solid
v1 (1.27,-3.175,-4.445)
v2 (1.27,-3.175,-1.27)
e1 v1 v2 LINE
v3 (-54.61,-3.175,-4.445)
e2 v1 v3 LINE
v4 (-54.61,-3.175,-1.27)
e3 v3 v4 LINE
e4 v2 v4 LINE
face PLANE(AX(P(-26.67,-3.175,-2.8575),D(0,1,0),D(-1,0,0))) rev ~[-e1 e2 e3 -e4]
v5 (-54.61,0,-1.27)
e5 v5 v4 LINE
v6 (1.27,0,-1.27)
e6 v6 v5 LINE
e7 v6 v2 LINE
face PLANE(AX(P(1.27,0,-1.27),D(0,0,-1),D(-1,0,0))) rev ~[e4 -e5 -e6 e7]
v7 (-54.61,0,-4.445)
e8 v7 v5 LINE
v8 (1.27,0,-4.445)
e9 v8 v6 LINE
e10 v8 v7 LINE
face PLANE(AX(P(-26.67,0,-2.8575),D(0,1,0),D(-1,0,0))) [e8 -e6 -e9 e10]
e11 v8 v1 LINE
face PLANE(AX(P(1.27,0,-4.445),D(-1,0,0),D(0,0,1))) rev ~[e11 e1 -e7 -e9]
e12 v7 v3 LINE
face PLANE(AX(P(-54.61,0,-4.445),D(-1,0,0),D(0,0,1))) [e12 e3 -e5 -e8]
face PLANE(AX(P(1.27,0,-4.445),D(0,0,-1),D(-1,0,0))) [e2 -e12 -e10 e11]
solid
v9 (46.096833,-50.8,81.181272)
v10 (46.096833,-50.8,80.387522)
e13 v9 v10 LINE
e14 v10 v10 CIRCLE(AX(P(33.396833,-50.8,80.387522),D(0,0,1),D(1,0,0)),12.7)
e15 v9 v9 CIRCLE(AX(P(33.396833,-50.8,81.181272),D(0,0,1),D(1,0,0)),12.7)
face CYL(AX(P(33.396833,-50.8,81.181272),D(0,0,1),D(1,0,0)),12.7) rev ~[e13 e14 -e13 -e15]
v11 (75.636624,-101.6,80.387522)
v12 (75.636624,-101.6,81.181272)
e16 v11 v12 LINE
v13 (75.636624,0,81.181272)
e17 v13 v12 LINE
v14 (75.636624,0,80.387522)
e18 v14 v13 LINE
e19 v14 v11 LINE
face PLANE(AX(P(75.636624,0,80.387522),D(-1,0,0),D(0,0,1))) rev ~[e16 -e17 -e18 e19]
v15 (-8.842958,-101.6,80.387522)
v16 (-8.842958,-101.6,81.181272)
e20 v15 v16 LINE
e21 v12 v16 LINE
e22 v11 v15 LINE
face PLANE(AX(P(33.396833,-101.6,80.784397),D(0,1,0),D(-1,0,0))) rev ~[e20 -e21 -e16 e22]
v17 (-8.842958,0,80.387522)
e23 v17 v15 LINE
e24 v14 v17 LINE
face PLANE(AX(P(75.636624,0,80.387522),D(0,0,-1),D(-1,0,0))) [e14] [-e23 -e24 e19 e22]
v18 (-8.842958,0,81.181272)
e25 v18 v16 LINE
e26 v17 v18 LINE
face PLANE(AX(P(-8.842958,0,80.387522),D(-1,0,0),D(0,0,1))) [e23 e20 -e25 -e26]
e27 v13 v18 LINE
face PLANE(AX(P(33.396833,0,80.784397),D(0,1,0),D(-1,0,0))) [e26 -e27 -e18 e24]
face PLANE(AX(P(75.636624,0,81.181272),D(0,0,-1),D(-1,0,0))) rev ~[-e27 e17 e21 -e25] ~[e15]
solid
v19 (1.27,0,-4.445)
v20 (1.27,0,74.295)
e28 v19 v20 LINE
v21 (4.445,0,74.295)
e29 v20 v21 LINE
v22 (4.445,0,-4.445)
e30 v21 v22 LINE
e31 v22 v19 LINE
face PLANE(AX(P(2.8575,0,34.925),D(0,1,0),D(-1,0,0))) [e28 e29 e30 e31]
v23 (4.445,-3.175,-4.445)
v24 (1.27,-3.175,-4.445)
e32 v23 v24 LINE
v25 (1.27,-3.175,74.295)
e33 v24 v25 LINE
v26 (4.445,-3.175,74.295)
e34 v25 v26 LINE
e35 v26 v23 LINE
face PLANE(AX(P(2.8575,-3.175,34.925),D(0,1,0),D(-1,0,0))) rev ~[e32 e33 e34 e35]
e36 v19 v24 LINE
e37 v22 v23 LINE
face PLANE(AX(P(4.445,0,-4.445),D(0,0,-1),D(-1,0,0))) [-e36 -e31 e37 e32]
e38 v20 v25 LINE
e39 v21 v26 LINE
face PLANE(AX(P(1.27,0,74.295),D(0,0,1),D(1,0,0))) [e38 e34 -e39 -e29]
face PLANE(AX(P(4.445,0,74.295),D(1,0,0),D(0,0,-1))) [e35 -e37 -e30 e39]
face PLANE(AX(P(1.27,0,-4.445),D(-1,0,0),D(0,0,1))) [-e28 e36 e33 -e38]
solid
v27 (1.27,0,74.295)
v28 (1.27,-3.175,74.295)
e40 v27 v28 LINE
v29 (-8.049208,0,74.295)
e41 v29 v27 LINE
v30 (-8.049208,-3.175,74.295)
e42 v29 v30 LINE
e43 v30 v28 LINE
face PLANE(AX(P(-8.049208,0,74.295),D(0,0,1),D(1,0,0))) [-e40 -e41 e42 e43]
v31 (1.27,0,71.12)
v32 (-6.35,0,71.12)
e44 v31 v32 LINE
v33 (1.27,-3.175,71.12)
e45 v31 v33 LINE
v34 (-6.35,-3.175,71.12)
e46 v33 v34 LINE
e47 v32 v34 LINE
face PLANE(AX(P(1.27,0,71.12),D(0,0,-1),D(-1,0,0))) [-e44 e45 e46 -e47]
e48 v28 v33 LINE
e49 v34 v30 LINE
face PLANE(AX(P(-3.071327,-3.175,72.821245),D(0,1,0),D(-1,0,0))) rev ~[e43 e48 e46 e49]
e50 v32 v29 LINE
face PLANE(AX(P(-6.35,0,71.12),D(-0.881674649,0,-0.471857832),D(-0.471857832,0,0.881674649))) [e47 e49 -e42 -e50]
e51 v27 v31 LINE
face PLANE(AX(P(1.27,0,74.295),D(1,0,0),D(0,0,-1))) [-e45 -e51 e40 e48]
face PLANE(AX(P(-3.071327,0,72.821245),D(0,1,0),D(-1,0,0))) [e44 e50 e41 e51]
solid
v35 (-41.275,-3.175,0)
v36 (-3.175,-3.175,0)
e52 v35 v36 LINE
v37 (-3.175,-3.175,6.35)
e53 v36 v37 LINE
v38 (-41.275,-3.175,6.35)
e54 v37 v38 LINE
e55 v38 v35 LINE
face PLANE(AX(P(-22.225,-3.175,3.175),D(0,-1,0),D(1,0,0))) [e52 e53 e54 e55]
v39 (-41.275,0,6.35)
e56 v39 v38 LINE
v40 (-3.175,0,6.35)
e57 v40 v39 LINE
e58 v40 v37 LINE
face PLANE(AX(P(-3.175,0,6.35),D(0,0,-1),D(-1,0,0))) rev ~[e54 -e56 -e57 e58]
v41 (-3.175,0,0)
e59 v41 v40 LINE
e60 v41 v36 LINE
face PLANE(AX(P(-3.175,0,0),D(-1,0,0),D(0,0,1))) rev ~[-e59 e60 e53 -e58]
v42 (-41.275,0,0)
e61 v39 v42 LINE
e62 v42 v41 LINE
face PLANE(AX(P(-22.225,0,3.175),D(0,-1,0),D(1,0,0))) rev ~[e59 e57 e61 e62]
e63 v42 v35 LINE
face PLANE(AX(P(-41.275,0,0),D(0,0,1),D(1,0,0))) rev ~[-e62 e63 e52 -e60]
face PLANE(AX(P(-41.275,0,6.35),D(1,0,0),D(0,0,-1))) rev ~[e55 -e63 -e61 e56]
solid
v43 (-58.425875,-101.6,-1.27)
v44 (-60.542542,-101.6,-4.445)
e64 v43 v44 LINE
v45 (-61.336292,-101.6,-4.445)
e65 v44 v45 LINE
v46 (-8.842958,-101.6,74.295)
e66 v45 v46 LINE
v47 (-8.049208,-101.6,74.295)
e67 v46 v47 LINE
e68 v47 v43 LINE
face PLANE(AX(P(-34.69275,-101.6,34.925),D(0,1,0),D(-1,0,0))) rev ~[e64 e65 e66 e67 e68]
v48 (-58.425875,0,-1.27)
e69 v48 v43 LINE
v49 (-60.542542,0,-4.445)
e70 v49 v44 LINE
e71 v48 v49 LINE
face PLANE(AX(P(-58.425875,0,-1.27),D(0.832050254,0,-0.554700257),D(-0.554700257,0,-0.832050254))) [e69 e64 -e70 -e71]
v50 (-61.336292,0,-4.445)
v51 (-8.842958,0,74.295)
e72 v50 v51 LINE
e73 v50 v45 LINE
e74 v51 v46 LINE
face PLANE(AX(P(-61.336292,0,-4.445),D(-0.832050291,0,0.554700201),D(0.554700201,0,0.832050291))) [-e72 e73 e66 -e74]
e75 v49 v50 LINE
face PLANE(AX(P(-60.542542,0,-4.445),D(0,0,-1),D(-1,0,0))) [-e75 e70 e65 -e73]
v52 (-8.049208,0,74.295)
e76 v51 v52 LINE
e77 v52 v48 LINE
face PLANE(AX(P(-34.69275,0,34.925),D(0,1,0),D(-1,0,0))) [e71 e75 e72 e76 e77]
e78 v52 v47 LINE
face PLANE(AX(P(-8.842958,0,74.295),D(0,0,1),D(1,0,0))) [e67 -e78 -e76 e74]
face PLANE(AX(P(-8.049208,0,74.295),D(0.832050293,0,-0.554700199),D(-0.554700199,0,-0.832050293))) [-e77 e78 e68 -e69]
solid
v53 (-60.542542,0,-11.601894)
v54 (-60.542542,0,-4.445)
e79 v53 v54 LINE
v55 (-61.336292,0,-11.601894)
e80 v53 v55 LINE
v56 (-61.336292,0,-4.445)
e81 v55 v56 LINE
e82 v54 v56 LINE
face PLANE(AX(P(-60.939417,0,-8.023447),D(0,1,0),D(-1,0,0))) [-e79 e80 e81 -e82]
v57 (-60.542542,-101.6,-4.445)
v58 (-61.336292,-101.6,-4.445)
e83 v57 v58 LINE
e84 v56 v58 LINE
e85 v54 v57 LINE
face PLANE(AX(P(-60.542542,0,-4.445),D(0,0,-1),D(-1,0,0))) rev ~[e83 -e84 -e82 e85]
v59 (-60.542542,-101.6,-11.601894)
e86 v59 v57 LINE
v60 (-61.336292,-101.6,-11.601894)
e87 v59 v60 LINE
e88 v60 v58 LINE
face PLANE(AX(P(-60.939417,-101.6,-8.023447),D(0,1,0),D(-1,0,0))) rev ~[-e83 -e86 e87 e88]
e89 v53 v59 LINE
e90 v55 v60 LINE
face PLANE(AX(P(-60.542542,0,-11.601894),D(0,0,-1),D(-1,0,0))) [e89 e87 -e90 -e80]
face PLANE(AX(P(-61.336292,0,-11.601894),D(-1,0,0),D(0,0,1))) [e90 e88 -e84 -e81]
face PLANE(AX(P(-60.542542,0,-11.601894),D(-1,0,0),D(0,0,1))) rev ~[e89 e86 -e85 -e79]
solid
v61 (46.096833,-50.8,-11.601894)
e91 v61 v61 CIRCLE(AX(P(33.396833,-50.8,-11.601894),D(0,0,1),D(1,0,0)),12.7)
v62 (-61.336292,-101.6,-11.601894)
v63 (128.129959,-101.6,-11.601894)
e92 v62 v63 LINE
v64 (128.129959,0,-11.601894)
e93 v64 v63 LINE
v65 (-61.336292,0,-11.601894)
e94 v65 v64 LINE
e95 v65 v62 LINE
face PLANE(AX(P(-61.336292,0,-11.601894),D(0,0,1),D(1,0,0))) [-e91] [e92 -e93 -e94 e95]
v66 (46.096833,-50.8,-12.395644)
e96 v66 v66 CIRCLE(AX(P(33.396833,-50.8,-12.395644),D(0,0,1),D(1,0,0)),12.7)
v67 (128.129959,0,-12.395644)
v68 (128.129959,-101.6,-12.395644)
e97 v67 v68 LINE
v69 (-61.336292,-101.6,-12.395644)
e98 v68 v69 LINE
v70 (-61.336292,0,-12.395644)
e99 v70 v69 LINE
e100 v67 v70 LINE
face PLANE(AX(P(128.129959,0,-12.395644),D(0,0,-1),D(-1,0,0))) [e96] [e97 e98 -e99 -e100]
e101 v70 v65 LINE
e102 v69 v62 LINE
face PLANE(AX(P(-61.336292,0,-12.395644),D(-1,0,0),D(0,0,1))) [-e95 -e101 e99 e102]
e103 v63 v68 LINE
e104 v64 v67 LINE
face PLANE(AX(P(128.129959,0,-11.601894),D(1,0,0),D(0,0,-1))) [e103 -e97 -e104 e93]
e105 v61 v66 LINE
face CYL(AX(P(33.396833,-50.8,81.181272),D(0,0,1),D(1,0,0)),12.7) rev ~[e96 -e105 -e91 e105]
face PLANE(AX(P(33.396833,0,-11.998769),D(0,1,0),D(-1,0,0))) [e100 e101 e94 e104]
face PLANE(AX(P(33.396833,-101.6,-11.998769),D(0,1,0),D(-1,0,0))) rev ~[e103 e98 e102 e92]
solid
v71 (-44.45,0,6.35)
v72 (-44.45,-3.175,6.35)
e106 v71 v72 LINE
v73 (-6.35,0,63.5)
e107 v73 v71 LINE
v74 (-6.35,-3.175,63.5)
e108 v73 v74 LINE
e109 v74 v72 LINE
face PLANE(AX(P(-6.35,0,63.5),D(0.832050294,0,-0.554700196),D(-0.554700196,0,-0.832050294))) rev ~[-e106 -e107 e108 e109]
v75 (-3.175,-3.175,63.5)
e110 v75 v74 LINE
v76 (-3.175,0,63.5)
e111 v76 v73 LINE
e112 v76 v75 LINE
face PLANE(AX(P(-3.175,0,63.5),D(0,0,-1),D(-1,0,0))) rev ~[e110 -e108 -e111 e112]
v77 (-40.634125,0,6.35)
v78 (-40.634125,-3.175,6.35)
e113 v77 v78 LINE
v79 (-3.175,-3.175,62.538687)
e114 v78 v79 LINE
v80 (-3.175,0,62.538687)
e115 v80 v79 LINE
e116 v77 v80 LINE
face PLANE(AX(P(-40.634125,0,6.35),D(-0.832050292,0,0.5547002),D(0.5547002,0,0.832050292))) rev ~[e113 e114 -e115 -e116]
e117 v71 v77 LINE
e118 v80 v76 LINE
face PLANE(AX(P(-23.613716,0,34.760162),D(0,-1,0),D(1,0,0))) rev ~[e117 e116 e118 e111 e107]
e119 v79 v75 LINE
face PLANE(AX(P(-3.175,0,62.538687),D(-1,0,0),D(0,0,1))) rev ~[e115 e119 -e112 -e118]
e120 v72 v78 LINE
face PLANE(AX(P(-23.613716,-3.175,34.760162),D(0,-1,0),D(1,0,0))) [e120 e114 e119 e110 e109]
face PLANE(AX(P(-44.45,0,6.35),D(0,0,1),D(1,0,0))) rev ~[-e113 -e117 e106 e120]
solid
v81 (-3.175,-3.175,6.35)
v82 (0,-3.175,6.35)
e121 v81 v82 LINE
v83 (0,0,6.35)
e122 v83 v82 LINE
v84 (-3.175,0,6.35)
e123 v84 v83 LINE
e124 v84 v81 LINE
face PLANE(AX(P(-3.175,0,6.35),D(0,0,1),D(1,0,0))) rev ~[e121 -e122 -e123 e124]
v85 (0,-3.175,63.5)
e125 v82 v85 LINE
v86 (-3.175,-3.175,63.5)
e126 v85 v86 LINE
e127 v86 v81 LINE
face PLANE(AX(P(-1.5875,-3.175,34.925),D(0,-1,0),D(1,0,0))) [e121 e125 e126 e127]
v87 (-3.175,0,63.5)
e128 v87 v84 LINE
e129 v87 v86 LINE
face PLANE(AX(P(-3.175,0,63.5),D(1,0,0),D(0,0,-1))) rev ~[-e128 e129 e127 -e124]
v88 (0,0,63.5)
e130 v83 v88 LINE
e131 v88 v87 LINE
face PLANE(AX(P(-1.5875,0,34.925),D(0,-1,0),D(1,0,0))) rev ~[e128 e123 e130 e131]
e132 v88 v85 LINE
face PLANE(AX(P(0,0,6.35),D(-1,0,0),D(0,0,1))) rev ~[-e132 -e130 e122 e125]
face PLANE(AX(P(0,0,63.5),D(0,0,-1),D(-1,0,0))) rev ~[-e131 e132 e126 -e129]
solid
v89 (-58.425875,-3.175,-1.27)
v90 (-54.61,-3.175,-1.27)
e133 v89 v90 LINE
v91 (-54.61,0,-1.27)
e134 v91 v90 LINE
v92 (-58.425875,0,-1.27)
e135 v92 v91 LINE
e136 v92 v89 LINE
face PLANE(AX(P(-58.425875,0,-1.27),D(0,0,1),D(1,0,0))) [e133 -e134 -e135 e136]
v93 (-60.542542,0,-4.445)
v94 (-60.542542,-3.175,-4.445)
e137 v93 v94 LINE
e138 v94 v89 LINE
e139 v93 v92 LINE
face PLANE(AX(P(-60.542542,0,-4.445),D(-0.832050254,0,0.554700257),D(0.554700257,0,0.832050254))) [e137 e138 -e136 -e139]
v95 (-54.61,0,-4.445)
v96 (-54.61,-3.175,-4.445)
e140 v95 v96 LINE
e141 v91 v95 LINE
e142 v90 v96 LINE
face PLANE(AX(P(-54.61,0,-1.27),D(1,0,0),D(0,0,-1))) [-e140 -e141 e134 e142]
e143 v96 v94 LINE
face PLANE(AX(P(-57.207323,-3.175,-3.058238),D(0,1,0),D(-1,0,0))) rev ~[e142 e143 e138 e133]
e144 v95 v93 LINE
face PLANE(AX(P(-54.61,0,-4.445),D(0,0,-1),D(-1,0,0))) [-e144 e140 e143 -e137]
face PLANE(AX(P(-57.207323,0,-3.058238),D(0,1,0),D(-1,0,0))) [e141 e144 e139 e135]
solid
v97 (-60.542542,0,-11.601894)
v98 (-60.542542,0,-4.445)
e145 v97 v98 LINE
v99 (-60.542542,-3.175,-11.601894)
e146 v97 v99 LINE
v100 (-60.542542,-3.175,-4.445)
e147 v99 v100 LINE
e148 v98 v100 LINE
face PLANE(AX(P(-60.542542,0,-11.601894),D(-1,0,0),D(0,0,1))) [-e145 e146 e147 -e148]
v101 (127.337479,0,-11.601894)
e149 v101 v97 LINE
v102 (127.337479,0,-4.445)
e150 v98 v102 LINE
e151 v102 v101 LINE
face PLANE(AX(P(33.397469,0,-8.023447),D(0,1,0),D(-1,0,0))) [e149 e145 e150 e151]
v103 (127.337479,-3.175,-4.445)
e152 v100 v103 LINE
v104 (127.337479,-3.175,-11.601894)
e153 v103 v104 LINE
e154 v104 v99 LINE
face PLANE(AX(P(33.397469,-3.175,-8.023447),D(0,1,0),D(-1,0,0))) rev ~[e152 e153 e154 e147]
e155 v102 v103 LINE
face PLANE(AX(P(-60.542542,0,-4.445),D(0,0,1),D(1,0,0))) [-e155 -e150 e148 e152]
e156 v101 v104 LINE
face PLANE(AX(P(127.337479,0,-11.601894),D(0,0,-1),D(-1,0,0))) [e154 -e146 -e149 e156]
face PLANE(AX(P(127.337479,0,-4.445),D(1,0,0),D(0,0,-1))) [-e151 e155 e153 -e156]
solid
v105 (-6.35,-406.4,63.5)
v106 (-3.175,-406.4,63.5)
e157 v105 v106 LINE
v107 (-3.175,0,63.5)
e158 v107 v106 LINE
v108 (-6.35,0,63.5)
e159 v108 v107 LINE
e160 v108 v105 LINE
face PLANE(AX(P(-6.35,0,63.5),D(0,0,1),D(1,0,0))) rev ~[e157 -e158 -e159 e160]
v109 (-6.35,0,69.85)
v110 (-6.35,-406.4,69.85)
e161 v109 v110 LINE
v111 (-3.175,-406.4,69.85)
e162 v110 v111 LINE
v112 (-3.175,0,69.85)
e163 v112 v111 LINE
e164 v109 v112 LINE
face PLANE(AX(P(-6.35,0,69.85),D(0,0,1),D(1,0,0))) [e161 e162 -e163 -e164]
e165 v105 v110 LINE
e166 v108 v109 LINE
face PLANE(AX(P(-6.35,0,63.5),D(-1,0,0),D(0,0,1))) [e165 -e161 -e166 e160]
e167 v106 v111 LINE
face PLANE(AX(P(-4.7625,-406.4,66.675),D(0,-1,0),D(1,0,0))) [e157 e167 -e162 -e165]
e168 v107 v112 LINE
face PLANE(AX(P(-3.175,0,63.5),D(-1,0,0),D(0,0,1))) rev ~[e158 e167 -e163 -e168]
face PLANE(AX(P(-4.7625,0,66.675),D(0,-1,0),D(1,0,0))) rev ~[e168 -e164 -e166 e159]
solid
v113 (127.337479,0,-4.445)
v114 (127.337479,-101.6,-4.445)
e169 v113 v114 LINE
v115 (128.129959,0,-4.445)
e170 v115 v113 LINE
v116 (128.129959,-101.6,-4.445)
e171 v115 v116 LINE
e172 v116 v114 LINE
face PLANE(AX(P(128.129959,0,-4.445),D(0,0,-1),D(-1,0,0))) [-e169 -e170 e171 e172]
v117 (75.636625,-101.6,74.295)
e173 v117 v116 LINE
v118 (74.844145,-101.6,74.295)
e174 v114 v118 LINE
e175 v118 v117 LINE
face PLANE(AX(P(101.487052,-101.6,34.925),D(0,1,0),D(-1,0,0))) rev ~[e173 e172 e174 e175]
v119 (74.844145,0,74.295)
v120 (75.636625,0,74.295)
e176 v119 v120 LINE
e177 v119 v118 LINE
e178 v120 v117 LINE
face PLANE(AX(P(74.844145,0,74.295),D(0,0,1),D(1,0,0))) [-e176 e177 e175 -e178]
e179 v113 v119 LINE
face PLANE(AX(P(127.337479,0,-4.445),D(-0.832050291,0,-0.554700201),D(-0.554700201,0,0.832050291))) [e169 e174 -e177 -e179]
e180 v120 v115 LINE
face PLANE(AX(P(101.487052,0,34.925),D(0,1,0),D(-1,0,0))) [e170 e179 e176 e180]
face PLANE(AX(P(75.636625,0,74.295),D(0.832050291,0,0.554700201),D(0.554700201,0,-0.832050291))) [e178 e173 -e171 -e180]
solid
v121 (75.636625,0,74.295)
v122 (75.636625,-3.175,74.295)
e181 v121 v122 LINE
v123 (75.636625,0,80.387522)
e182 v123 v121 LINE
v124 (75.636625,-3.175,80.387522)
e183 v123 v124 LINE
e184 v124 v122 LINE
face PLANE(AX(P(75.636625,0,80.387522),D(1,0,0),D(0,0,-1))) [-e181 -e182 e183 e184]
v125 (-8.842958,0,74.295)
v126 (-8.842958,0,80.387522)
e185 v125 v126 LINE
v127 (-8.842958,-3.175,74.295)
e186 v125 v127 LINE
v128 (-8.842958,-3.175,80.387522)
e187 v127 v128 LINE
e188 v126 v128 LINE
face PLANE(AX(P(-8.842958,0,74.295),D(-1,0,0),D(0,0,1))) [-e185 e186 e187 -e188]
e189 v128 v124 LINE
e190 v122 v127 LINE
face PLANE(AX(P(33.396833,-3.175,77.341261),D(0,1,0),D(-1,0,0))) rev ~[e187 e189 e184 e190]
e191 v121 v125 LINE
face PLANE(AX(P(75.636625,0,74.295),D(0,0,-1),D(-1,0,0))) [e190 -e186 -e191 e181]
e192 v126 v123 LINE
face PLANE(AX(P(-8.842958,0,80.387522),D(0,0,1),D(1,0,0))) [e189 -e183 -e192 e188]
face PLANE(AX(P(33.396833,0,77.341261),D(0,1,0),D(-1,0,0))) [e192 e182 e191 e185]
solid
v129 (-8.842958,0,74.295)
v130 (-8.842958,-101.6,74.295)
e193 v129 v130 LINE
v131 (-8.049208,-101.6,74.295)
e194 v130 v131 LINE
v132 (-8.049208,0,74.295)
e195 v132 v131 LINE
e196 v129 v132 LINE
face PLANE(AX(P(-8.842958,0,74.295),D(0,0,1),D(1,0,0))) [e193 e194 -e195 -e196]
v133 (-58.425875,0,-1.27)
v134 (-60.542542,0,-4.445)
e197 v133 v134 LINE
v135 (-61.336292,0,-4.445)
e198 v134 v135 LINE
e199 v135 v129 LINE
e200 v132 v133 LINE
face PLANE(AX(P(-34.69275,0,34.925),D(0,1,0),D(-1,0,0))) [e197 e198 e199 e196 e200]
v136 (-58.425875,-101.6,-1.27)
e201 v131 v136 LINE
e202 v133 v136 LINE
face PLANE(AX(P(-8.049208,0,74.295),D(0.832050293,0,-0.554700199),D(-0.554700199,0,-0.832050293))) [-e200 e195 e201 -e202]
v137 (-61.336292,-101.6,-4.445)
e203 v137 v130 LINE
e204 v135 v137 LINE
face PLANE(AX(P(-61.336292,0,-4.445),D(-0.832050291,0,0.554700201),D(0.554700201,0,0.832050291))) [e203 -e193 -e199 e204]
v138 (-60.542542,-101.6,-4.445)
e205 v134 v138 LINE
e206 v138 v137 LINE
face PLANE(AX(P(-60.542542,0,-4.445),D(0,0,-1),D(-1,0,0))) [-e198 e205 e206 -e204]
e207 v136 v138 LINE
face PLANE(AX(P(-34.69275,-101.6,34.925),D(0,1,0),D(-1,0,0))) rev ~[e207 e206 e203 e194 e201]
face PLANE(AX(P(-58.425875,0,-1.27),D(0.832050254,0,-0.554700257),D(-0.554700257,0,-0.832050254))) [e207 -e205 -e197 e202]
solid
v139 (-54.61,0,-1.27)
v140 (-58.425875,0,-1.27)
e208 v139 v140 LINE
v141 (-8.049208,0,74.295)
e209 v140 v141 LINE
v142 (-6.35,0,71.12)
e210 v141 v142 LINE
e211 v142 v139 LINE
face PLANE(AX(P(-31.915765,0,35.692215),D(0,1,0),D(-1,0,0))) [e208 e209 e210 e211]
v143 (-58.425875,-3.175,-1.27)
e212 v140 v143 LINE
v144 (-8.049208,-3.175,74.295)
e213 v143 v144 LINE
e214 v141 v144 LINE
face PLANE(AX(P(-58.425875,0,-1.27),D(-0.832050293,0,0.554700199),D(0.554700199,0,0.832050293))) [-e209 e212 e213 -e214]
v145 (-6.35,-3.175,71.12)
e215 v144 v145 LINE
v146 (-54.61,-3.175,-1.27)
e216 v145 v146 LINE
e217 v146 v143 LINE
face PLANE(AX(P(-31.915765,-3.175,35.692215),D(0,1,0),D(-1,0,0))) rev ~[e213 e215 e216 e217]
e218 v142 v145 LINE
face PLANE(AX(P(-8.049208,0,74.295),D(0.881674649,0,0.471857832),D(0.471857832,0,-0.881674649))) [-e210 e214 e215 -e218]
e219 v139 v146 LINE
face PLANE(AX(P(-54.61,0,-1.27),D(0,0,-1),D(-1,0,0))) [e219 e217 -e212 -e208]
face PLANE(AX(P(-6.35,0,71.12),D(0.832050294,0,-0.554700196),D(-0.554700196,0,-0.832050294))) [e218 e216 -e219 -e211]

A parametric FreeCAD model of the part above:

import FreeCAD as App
import Part
import Sketcher
Q = App.Units.Quantity


def add_polygon(sketch, points):
    """Adds a closed chain of lines whose ends are joined by coincident constraints."""
    first, n = sketch.GeometryCount, len(points)
    for a, b in zip(points, points[1:] + points[:1]):
        sketch.addGeometry(Part.LineSegment(App.Vector(*a, 0), App.Vector(*b, 0)), False)
    for i in range(n):
        sketch.addConstraint(Sketcher.Constraint("Coincident", first + i, 2, first + (i + 1) % n, 1))

doc = App.newDocument("Part")
params = doc.addObject("Spreadsheet::Sheet", "Params")
for row, (alias, value) in enumerate([
    ("sketch1_height", "0.25 in"),
    ("sketch1_width", "0.125 in"),
    ("pad1_length", "16 in"),
    ("sketch2_width", "1.5 in"),
    ("sketch2_height", "0.25 in"),
    ("pad2_length", "0.125 in"),
    ("sketch3_width", "0.125 in"),
    ("pad3_length", "0.125 in"),
    ("sketch4_height", "2.25 in"),
    ("sketch4_width", "0.125 in"),
    ("pad4_length", "0.125 in"),
    ("pad5_length", "0.125 in"),
    ("sketch6_width", "0.03125 in"),
    ("pad6_length", "4 in"),
    ("sketch7_width", "0.3 in"),
    ("sketch7_height", "0.125 in"),
    ("pad7_length", "0.125 in"),
    ("pad8_length", "0.125 in"),
    ("sketch9_height", "3.1 in"),
    ("sketch9_width", "0.125 in"),
    ("pad9_length", "0.125 in"),
    ("sketch10_height", "0.125 in"),
    ("pad10_length", "0.125 in"),
    ("sketch11_width", "2.2 in"),
    ("sketch11_height", "0.125 in"),
    ("pad11_length", "0.125 in"),
    ("sketch12_height", "0.03125 in"),
    ("pad12_length", "4 in"),
    ("sketch13_diameter", "1 in"),
    ("sketch14_width", "0.03125 in"),
    ("pad13_length", "4 in"),
    ("sketch15_width", "0.03125 in"),
    ("pad14_length", "4 in"),
    ("pad15_length", "0.125 in"),
    ("pad16_length", "4 in"),
], start=1):
    params.set(f"A{row}", alias)
    params.set(f"B{row}", "=" + value)
    params.setAlias(f"B{row}", alias)

body = doc.addObject("PartDesign::Body", "Body")

# Sketch on XZ plane
sketch1 = doc.addObject("Sketcher::SketchObject", "Sketch")
body.addObject(sketch1)
sketch1.AttachmentSupport = (doc.XZ_Plane, [""])
sketch1.MapMode = "FlatFace"
add_polygon(sketch1, [(-6.3, 69.8), (-6.3, 63.5), (-3.2, 63.5), (-3.2, 69.8)])  # lines 0-3
sketch1.addConstraint(Sketcher.Constraint("Vertical", 0))
sketch1.addConstraint(Sketcher.Constraint("Horizontal", 1))
sketch1.addConstraint(Sketcher.Constraint("Vertical", 2))
sketch1.addConstraint(Sketcher.Constraint("Horizontal", 3))
sketch1.addConstraint(Sketcher.Constraint("DistanceY", 0, 2, 0, 1, Q("0.25 in")))
sketch1.addConstraint(Sketcher.Constraint("DistanceY", -1, 1, 0, 2, Q("2.5 in")))
sketch1.addConstraint(Sketcher.Constraint("DistanceX", 1, 1, 1, 2, Q("0.125 in")))
sketch1.addConstraint(Sketcher.Constraint("DistanceX", 0, 2, -1, 1, Q("0.25 in")))
sketch1.setExpression("Constraints[8]", "Params.sketch1_height")
sketch1.setExpression("Constraints[10]", "Params.sketch1_width")
pad1 = doc.addObject("PartDesign::Pad", "Pad")
body.addObject(pad1)
pad1.Profile = sketch1
pad1.setExpression("Length", "Params.pad1_length")
body2 = doc.addObject("PartDesign::Body", "Body001")

# Sketch on XZ plane
sketch2 = doc.addObject("Sketcher::SketchObject", "Sketch001")
body2.addObject(sketch2)
sketch2.AttachmentSupport = (doc.getObject("XZ_Plane001"), [""])
sketch2.MapMode = "FlatFace"
add_polygon(sketch2, [(-41, 6), (-41, 0), (-3, 0), (-3, 6)])  # lines 0-3
sketch2.addConstraint(Sketcher.Constraint("Vertical", 0))
sketch2.addConstraint(Sketcher.Constraint("Horizontal", 1))
sketch2.addConstraint(Sketcher.Constraint("Vertical", 2))
sketch2.addConstraint(Sketcher.Constraint("Horizontal", 3))
sketch2.addConstraint(Sketcher.Constraint("PointOnObject", 0, 2, -1))
sketch2.addConstraint(Sketcher.Constraint("DistanceX", 1, 1, 1, 2, Q("1.5 in")))
sketch2.addConstraint(Sketcher.Constraint("DistanceY", 0, 2, 0, 1, Q("0.25 in")))
sketch2.addConstraint(Sketcher.Constraint("DistanceX", 0, 2, -1, 1, Q("1.625 in")))
sketch2.setExpression("Constraints[9]", "Params.sketch2_width")
sketch2.setExpression("Constraints[10]", "Params.sketch2_height")
pad2 = doc.addObject("PartDesign::Pad", "Pad001")
body2.addObject(pad2)
pad2.Profile = sketch2
pad2.setExpression("Length", "Params.pad2_length")
body3 = doc.addObject("PartDesign::Body", "Body002")

# Sketch on XZ plane
sketch3 = doc.addObject("Sketcher::SketchObject", "Sketch002")
body3.addObject(sketch3)
sketch3.AttachmentSupport = (doc.getObject("XZ_Plane002"), [""])
sketch3.MapMode = "FlatFace"
add_polygon(sketch3, [(-6.3, 63.5), (-44.5, 6.3), (-40.6, 6.3), (-3.2, 62.5), (-3.2, 63.5)])  # lines 0-4
sketch3.addConstraint(Sketcher.Constraint("Horizontal", 1))
sketch3.addConstraint(Sketcher.Constraint("Vertical", 3))
sketch3.addConstraint(Sketcher.Constraint("Horizontal", 4))
sketch3.addConstraint(Sketcher.Constraint("Parallel", 0, 2))
sketch3.addConstraint(Sketcher.Constraint("DistanceY", -1, 1, 3, 2, Q("2.5 in")))
sketch3.addConstraint(Sketcher.Constraint("DistanceX", 0, 2, 4, 2, Q("1.5 in")))
sketch3.addConstraint(Sketcher.Constraint("DistanceX", 4, 2, 4, 1, Q("0.125 in")))
sketch3.addConstraint(Sketcher.Constraint("DistanceX", 0, 2, -1, 1, Q("1.75 in")))
sketch3.addConstraint(Sketcher.Constraint("DistanceY", -1, 1, 0, 2, Q("0.25 in")))
sketch3.addConstraint(Sketcher.Constraint("DistanceX", 1, 1, 1, 2, 3.815875))
sketch3.setExpression("Constraints[11]", "Params.sketch3_width")
pad3 = doc.addObject("PartDesign::Pad", "Pad002")
body3.addObject(pad3)
pad3.Profile = sketch3
pad3.setExpression("Length", "Params.pad3_length")
body4 = doc.addObject("PartDesign::Body", "Body003")

# Sketch on XZ plane
sketch4 = doc.addObject("Sketcher::SketchObject", "Sketch003")
body4.addObject(sketch4)
sketch4.AttachmentSupport = (doc.getObject("XZ_Plane003"), [""])
sketch4.MapMode = "FlatFace"
add_polygon(sketch4, [(-3.2, 6.3), (0, 6.3), (0, 63.5), (-3.2, 63.5)])  # lines 0-3
sketch4.addConstraint(Sketcher.Constraint("Horizontal", 0))
sketch4.addConstraint(Sketcher.Constraint("Vertical", 1))
sketch4.addConstraint(Sketcher.Constraint("Horizontal", 2))
sketch4.addConstraint(Sketcher.Constraint("Vertical", 3))
sketch4.addConstraint(Sketcher.Constraint("PointOnObject", 0, 2, -2))
sketch4.addConstraint(Sketcher.Constraint("DistanceY", 1, 1, 1, 2, Q("2.25 in")))
sketch4.addConstraint(Sketcher.Constraint("DistanceY", -1, 1, 1, 2, Q("2.5 in")))
sketch4.addConstraint(Sketcher.Constraint("DistanceX", 0, 1, 0, 2, Q("0.125 in")))
sketch4.setExpression("Constraints[9]", "Params.sketch4_height")
sketch4.setExpression("Constraints[11]", "Params.sketch4_width")
pad4 = doc.addObject("PartDesign::Pad", "Pad003")
body4.addObject(pad4)
pad4.Profile = sketch4
pad4.setExpression("Length", "Params.pad4_length")
body5 = doc.addObject("PartDesign::Body", "Body004")

# Sketch on XZ plane
sketch5 = doc.addObject("Sketcher::SketchObject", "Sketch004")
body5.addObject(sketch5)
sketch5.AttachmentSupport = (doc.getObject("XZ_Plane004"), [""])
sketch5.MapMode = "FlatFace"
add_polygon(sketch5, [(-9, 74), (-9, 80), (76, 80), (76, 74)])  # lines 0-3
sketch5.addConstraint(Sketcher.Constraint("Vertical", 0))
sketch5.addConstraint(Sketcher.Constraint("Horizontal", 1))
sketch5.addConstraint(Sketcher.Constraint("Vertical", 2))
sketch5.addConstraint(Sketcher.Constraint("Horizontal", 3))
sketch5.addConstraint(Sketcher.Constraint("DistanceY", -1, 1, 2, 2, Q("2.925 in")))
sketch5.addConstraint(Sketcher.Constraint("DistanceX", 1, 1, 1, 2, 84.479583))
sketch5.addConstraint(Sketcher.Constraint("DistanceY", 0, 1, 0, 2, 6.092522))
sketch5.addConstraint(Sketcher.Constraint("DistanceX", 0, 2, -1, 1, 8.842958))
pad5 = doc.addObject("PartDesign::Pad", "Pad004")
body5.addObject(pad5)
pad5.Profile = sketch5
pad5.setExpression("Length", "Params.pad5_length")
body6 = doc.addObject("PartDesign::Body", "Body005")

# Sketch on XZ plane
sketch6 = doc.addObject("Sketcher::SketchObject", "Sketch005")
body6.addObject(sketch6)
sketch6.AttachmentSupport = (doc.getObject("XZ_Plane005"), [""])
sketch6.MapMode = "FlatFace"
add_polygon(sketch6, [(-8.8, 74.3), (-8, 74.3), (-58.4, -1.3), (-60.5, -4.4), (-61.3, -4.4)])  # lines 0-4
sketch6.addConstraint(Sketcher.Constraint("Horizontal", 0))
sketch6.addConstraint(Sketcher.Constraint("Horizontal", 3))
sketch6.addConstraint(Sketcher.Constraint("Parallel", 1, 2))
sketch6.addConstraint(Sketcher.Constraint("Parallel", 2, 4))
sketch6.addConstraint(Sketcher.Constraint("DistanceY", 2, 2, 0, 2, Q("3.1 in")))
sketch6.addConstraint(Sketcher.Constraint("DistanceX", 0, 1, 0, 2, Q("0.03125 in")))
sketch6.addConstraint(Sketcher.Constraint("DistanceY", 1, 2, -1, 1, Q("0.05 in")))
sketch6.addConstraint(Sketcher.Constraint("DistanceY", -1, 1, 0, 2, Q("2.925 in")))
sketch6.addConstraint(Sketcher.Constraint("DistanceX", 2, 2, -1, 1, 60.542542))
sketch6.addConstraint(Sketcher.Constraint("Distance", 1, 90.817828))
sketch6.setExpression("Constraints[10]", "Params.sketch6_width")
pad6 = doc.addObject("PartDesign::Pad", "Pad005")
body6.addObject(pad6)
pad6.Profile = sketch6
pad6.setExpression("Length", "Params.pad6_length")
body7 = doc.addObject("PartDesign::Body", "Body006")

# Sketch on XZ plane
sketch7 = doc.addObject("Sketcher::SketchObject", "Sketch006")
body7.addObject(sketch7)
sketch7.AttachmentSupport = (doc.getObject("XZ_Plane006"), [""])
sketch7.MapMode = "FlatFace"
add_polygon(sketch7, [(1.3, 74.3), (1.3, 71.1), (-6.3, 71.1), (-8, 74.3)])  # lines 0-3
sketch7.addConstraint(Sketcher.Constraint("Vertical", 0))
sketch7.addConstraint(Sketcher.Constraint("Horizontal", 1))
sketch7.addConstraint(Sketcher.Constraint("Horizontal", 3))
sketch7.addConstraint(Sketcher.Constraint("DistanceX", 1, 2, 1, 1, Q("0.3 in")))
sketch7.addConstraint(Sketcher.Constraint("DistanceY", -1, 1, 0, 2, Q("2.8 in")))
sketch7.addConstraint(Sketcher.Constraint("DistanceY", 0, 2, 0, 1, Q("0.125 in")))
sketch7.addConstraint(Sketcher.Constraint("DistanceX", -1, 1, 0, 2, Q("0.05 in")))
sketch7.addConstraint(Sketcher.Constraint("Distance", 2, 3.601102))
sketch7.setExpression("Constraints[7]", "Params.sketch7_width")
sketch7.setExpression("Constraints[9]", "Params.sketch7_height")
pad7 = doc.addObject("PartDesign::Pad", "Pad006")
body7.addObject(pad7)
pad7.Profile = sketch7
pad7.setExpression("Length", "Params.pad7_length")
body8 = doc.addObject("PartDesign::Body", "Body007")

# Sketch on XZ plane
sketch8 = doc.addObject("Sketcher::SketchObject", "Sketch007")
body8.addObject(sketch8)
sketch8.AttachmentSupport = (doc.getObject("XZ_Plane007"), [""])
sketch8.MapMode = "FlatFace"
add_polygon(sketch8, [(-8, 74.3), (-6.3, 71.1), (-54.6, -1.3), (-58.4, -1.3)])  # lines 0-3
sketch8.addConstraint(Sketcher.Constraint("Horizontal", 2))
sketch8.addConstraint(Sketcher.Constraint("Parallel", 1, 3))
sketch8.addConstraint(Sketcher.Constraint("DistanceY", -1, 1, 0, 2, Q("2.8 in")))
sketch8.addConstraint(Sketcher.Constraint("DistanceX", 1, 2, 0, 2, Q("1.9 in")))
sketch8.addConstraint(Sketcher.Constraint("DistanceX", 0, 2, -1, 1, Q("0.25 in")))
sketch8.addConstraint(Sketcher.Constraint("DistanceY", 1, 2, -1, 1, Q("0.05 in")))
sketch8.addConstraint(Sketcher.Constraint("DistanceY", -1, 1, 3, 2, Q("2.925 in")))
sketch8.addConstraint(Sketcher.Constraint("Distance", 0, 3.601102))
pad8 = doc.addObject("PartDesign::Pad", "Pad007")
body8.addObject(pad8)
pad8.Profile = sketch8
pad8.setExpression("Length", "Params.pad8_length")
body9 = doc.addObject("PartDesign::Body", "Body008")

# Sketch on XZ plane
sketch9 = doc.addObject("Sketcher::SketchObject", "Sketch008")
body9.addObject(sketch9)
sketch9.AttachmentSupport = (doc.getObject("XZ_Plane008"), [""])
sketch9.MapMode = "FlatFace"
add_polygon(sketch9, [(1.3, 74.3), (4.4, 74.3), (4.4, -4.4), (1.3, -4.4)])  # lines 0-3
sketch9.addConstraint(Sketcher.Constraint("Horizontal", 0))
sketch9.addConstraint(Sketcher.Constraint("Vertical", 1))
sketch9.addConstraint(Sketcher.Constraint("Horizontal", 2))
sketch9.addConstraint(Sketcher.Constraint("Vertical", 3))
sketch9.addConstraint(Sketcher.Constraint("DistanceY", 1, 2, 1, 1, Q("3.1 in")))
sketch9.addConstraint(Sketcher.Constraint("DistanceX", 0, 1, 0, 2, Q("0.125 in")))
sketch9.addConstraint(Sketcher.Constraint("DistanceX", -1, 1, 2, 2, Q("0.05 in")))
sketch9.addConstraint(Sketcher.Constraint("DistanceY", -1, 1, 0, 2, Q("2.925 in")))
sketch9.setExpression("Constraints[8]", "Params.sketch9_height")
sketch9.setExpression("Constraints[9]", "Params.sketch9_width")
pad9 = doc.addObject("PartDesign::Pad", "Pad008")
body9.addObject(pad9)
pad9.Profile = sketch9
pad9.setExpression("Length", "Params.pad9_length")
body10 = doc.addObject("PartDesign::Body", "Body009")

# Sketch on XZ plane
sketch10 = doc.addObject("Sketcher::SketchObject", "Sketch009")
body10.addObject(sketch10)
sketch10.AttachmentSupport = (doc.getObject("XZ_Plane009"), [""])
sketch10.MapMode = "FlatFace"
add_polygon(sketch10, [(-58.4, -1.3), (-54.6, -1.3), (-54.6, -4.4), (-60.5, -4.4)])  # lines 0-3
sketch10.addConstraint(Sketcher.Constraint("Horizontal", 0))
sketch10.addConstraint(Sketcher.Constraint("Vertical", 1))
sketch10.addConstraint(Sketcher.Constraint("Horizontal", 2))
sketch10.addConstraint(Sketcher.Constraint("DistanceY", 1, 2, 1, 1, Q("0.125 in")))
sketch10.addConstraint(Sketcher.Constraint("DistanceX", 0, 2, -1, 1, Q("2.15 in")))
sketch10.addConstraint(Sketcher.Constraint("DistanceY", 0, 2, -1, 1, Q("0.05 in")))
sketch10.addConstraint(Sketcher.Constraint("DistanceX", 2, 2, 2, 1, 5.932542))
sketch10.addConstraint(Sketcher.Constraint("DistanceX", 0, 1, 0, 2, 3.815875))
sketch10.setExpression("Constraints[7]", "Params.sketch10_height")
pad10 = doc.addObject("PartDesign::Pad", "Pad009")
body10.addObject(pad10)
pad10.Profile = sketch10
pad10.setExpression("Length", "Params.pad10_length")
body11 = doc.addObject("PartDesign::Body", "Body010")

# Sketch on XZ plane
sketch11 = doc.addObject("Sketcher::SketchObject", "Sketch010")
body11.addObject(sketch11)
sketch11.AttachmentSupport = (doc.getObject("XZ_Plane010"), [""])
sketch11.MapMode = "FlatFace"
add_polygon(sketch11, [(1.3, -1.3), (1.3, -4.4), (-54.6, -4.4), (-54.6, -1.3)])  # lines 0-3
sketch11.addConstraint(Sketcher.Constraint("Vertical", 0))
sketch11.addConstraint(Sketcher.Constraint("Horizontal", 1))
sketch11.addConstraint(Sketcher.Constraint("Vertical", 2))
sketch11.addConstraint(Sketcher.Constraint("Horizontal", 3))
sketch11.addConstraint(Sketcher.Constraint("DistanceX", 1, 2, 1, 1, Q("2.2 in")))
sketch11.addConstraint(Sketcher.Constraint("DistanceY", 0, 2, 0, 1, Q("0.125 in")))
sketch11.addConstraint(Sketcher.Constraint("DistanceX", -1, 1, 0, 2, Q("0.05 in")))
sketch11.addConstraint(Sketcher.Constraint("DistanceY", 2, 2, -1, 1, Q("0.05 in")))
sketch11.setExpression("Constraints[8]", "Params.sketch11_width")
sketch11.setExpression("Constraints[9]", "Params.sketch11_height")
pad11 = doc.addObject("PartDesign::Pad", "Pad010")
body11.addObject(pad11)
pad11.Profile = sketch11
pad11.setExpression("Length", "Params.pad11_length")
body12 = doc.addObject("PartDesign::Body", "Body011")
body12.AllowCompound = True

# Sketch on XZ plane
sketch12 = doc.addObject("Sketcher::SketchObject", "Sketch011")
body12.addObject(sketch12)
sketch12.AttachmentSupport = (doc.getObject("XZ_Plane011"), [""])
sketch12.MapMode = "FlatFace"
add_polygon(sketch12, [(-61.3, -11.6), (128.1, -11.6), (128.1, -12.4), (-61.3, -12.4)])  # lines 0-3
add_polygon(sketch12, [(75.6, 81.2), (75.6, 80.4), (-8.8, 80.4), (-8.8, 81.2)])  # lines 4-7
sketch12.addConstraint(Sketcher.Constraint("Horizontal", 0))
sketch12.addConstraint(Sketcher.Constraint("Vertical", 1))
sketch12.addConstraint(Sketcher.Constraint("Horizontal", 2))
sketch12.addConstraint(Sketcher.Constraint("Vertical", 3))
sketch12.addConstraint(Sketcher.Constraint("Vertical", 4))
sketch12.addConstraint(Sketcher.Constraint("Horizontal", 5))
sketch12.addConstraint(Sketcher.Constraint("Vertical", 6))
sketch12.addConstraint(Sketcher.Constraint("Horizontal", 7))
sketch12.addConstraint(Sketcher.Constraint("Equal", 3, 4))
sketch12.addConstraint(Sketcher.Constraint("DistanceY", 1, 2, 1, 1, Q("0.03125 in")))
sketch12.addConstraint(Sketcher.Constraint("DistanceX", 0, 1, 0, 2, 189.466251))
sketch12.addConstraint(Sketcher.Constraint("DistanceX", 5, 2, 5, 1, 84.479583))
sketch12.addConstraint(Sketcher.Constraint("DistanceX", -1, 1, 0, 2, 128.129959))
sketch12.addConstraint(Sketcher.Constraint("DistanceX", 5, 2, -1, 1, 8.842958))
sketch12.addConstraint(Sketcher.Constraint("DistanceY", 0, 2, -1, 1, 11.601894))
sketch12.addConstraint(Sketcher.Constraint("DistanceY", -1, 1, 4, 2, 80.387522))
sketch12.setExpression("Constraints[17]", "Params.sketch12_height")
pad12 = doc.addObject("PartDesign::Pad", "Pad011")
body12.addObject(pad12)
pad12.Profile = sketch12
pad12.setExpression("Length", "Params.pad12_length")

# Sketch on XY plane
sketch13 = doc.addObject("Sketcher::SketchObject", "Sketch012")
body12.addObject(sketch13)
sketch13.AttachmentSupport = (doc.getObject("XY_Plane011"), [""])
sketch13.MapMode = "FlatFace"
sketch13.AttachmentOffset = App.Placement(App.Vector(0, 0, 81.181272), App.Rotation())
sketch13.addGeometry(Part.Circle(App.Vector(33, -51, 0), App.Vector(0, 0, 1), 13), False)
sketch13.addConstraint(Sketcher.Constraint("Diameter", 0, Q("1 in")))
sketch13.addConstraint(Sketcher.Constraint("DistanceY", 0, 3, -1, 1, Q("2 in")))
sketch13.addConstraint(Sketcher.Constraint("DistanceX", -1, 1, 0, 3, 33.396833))
sketch13.setExpression("Constraints[0]", "Params.sketch13_diameter")
pocket1 = doc.addObject("PartDesign::Pocket", "Pocket")
body12.addObject(pocket1)
pocket1.Profile = sketch13
pocket1.Type = "ThroughAll"
body13 = doc.addObject("PartDesign::Body", "Body012")

# Sketch on XZ plane
sketch14 = doc.addObject("Sketcher::SketchObject", "Sketch013")
body13.addObject(sketch14)
sketch14.AttachmentSupport = (doc.getObject("XZ_Plane012"), [""])
sketch14.MapMode = "FlatFace"
add_polygon(sketch14, [(-8.8, 74.3), (-8, 74.3), (-58.4, -1.3), (-60.5, -4.4), (-61.3, -4.4)])  # lines 0-4
sketch14.addConstraint(Sketcher.Constraint("Horizontal", 0))
sketch14.addConstraint(Sketcher.Constraint("Horizontal", 3))
sketch14.addConstraint(Sketcher.Constraint("Parallel", 1, 2))
sketch14.addConstraint(Sketcher.Constraint("Parallel", 2, 4))
sketch14.addConstraint(Sketcher.Constraint("DistanceY", 2, 2, 0, 2, Q("3.1 in")))
sketch14.addConstraint(Sketcher.Constraint("DistanceX", 0, 1, 0, 2, Q("0.03125 in")))
sketch14.addConstraint(Sketcher.Constraint("DistanceY", 1, 2, -1, 1, Q("0.05 in")))
sketch14.addConstraint(Sketcher.Constraint("DistanceY", -1, 1, 0, 2, Q("2.925 in")))
sketch14.addConstraint(Sketcher.Constraint("DistanceX", 2, 2, -1, 1, 60.542542))
sketch14.addConstraint(Sketcher.Constraint("Distance", 1, 90.817828))
sketch14.setExpression("Constraints[10]", "Params.sketch14_width")
pad13 = doc.addObject("PartDesign::Pad", "Pad012")
body13.addObject(pad13)
pad13.Profile = sketch14
pad13.setExpression("Length", "Params.pad13_length")
body14 = doc.addObject("PartDesign::Body", "Body013")

# Sketch on XZ plane
sketch15 = doc.addObject("Sketcher::SketchObject", "Sketch014")
body14.addObject(sketch15)
sketch15.AttachmentSupport = (doc.getObject("XZ_Plane013"), [""])
sketch15.MapMode = "FlatFace"
add_polygon(sketch15, [(-60.5, -4.4), (-60.5, -11.6), (-61.3, -11.6), (-61.3, -4.4)])  # lines 0-3
sketch15.addConstraint(Sketcher.Constraint("Vertical", 0))
sketch15.addConstraint(Sketcher.Constraint("Horizontal", 1))
sketch15.addConstraint(Sketcher.Constraint("Vertical", 2))
sketch15.addConstraint(Sketcher.Constraint("Horizontal", 3))
sketch15.addConstraint(Sketcher.Constraint("DistanceX", 1, 2, 1, 1, Q("0.03125 in")))
sketch15.addConstraint(Sketcher.Constraint("DistanceY", 2, 2, -1, 1, Q("0.175 in")))
sketch15.addConstraint(Sketcher.Constraint("DistanceY", 0, 2, 0, 1, 7.156894))
sketch15.addConstraint(Sketcher.Constraint("DistanceX", 0, 2, -1, 1, 60.542542))
sketch15.setExpression("Constraints[8]", "Params.sketch15_width")
pad14 = doc.addObject("PartDesign::Pad", "Pad013")
body14.addObject(pad14)
pad14.Profile = sketch15
pad14.setExpression("Length", "Params.pad14_length")
body15 = doc.addObject("PartDesign::Body", "Body014")

# Sketch on XZ plane
sketch16 = doc.addObject("Sketcher::SketchObject", "Sketch015")
body15.addObject(sketch16)
sketch16.AttachmentSupport = (doc.getObject("XZ_Plane014"), [""])
sketch16.MapMode = "FlatFace"
add_polygon(sketch16, [(127, -4), (127, -12), (-61, -12), (-61, -4)])  # lines 0-3
sketch16.addConstraint(Sketcher.Constraint("Vertical", 0))
sketch16.addConstraint(Sketcher.Constraint("Horizontal", 1))
sketch16.addConstraint(Sketcher.Constraint("Vertical", 2))
sketch16.addConstraint(Sketcher.Constraint("Horizontal", 3))
sketch16.addConstraint(Sketcher.Constraint("DistanceY", 2, 2, -1, 1, Q("0.175 in")))
sketch16.addConstraint(Sketcher.Constraint("DistanceX", 1, 2, 1, 1, 187.880021))
sketch16.addConstraint(Sketcher.Constraint("DistanceY", 0, 2, 0, 1, 7.156894))
sketch16.addConstraint(Sketcher.Constraint("DistanceX", -1, 1, 0, 2, 127.337479))
pad15 = doc.addObject("PartDesign::Pad", "Pad014")
body15.addObject(pad15)
pad15.Profile = sketch16
pad15.setExpression("Length", "Params.pad15_length")
body16 = doc.addObject("PartDesign::Body", "Body015")

# Sketch on XZ plane
sketch17 = doc.addObject("Sketcher::SketchObject", "Sketch016")
body16.addObject(sketch17)
sketch17.AttachmentSupport = (doc.getObject("XZ_Plane015"), [""])
sketch17.MapMode = "FlatFace"
add_polygon(sketch17, [(127.3, -4.4), (74.8, 74.3), (75.6, 74.3), (128.1, -4.4)])  # lines 0-3
sketch17.addConstraint(Sketcher.Constraint("Horizontal", 1))
sketch17.addConstraint(Sketcher.Constraint("Horizontal", 3))
sketch17.addConstraint(Sketcher.Constraint("Parallel", 0, 2))
sketch17.addConstraint(Sketcher.Constraint("DistanceY", 2, 2, 1, 2, Q("3.1 in")))
sketch17.addConstraint(Sketcher.Constraint("DistanceX", 1, 1, 1, 2, Q("0.0312 in")))
sketch17.addConstraint(Sketcher.Constraint("DistanceY", -1, 1, 0, 2, Q("2.925 in")))
sketch17.addConstraint(Sketcher.Constraint("DistanceX", -1, 1, 2, 2, 128.129959))
sketch17.addConstraint(Sketcher.Constraint("Distance", 0, 94.633703))
pad16 = doc.addObject("PartDesign::Pad", "Pad015")
body16.addObject(pad16)
pad16.Profile = sketch17
pad16.setExpression("Length", "Params.pad16_length")

doc.recompute()
